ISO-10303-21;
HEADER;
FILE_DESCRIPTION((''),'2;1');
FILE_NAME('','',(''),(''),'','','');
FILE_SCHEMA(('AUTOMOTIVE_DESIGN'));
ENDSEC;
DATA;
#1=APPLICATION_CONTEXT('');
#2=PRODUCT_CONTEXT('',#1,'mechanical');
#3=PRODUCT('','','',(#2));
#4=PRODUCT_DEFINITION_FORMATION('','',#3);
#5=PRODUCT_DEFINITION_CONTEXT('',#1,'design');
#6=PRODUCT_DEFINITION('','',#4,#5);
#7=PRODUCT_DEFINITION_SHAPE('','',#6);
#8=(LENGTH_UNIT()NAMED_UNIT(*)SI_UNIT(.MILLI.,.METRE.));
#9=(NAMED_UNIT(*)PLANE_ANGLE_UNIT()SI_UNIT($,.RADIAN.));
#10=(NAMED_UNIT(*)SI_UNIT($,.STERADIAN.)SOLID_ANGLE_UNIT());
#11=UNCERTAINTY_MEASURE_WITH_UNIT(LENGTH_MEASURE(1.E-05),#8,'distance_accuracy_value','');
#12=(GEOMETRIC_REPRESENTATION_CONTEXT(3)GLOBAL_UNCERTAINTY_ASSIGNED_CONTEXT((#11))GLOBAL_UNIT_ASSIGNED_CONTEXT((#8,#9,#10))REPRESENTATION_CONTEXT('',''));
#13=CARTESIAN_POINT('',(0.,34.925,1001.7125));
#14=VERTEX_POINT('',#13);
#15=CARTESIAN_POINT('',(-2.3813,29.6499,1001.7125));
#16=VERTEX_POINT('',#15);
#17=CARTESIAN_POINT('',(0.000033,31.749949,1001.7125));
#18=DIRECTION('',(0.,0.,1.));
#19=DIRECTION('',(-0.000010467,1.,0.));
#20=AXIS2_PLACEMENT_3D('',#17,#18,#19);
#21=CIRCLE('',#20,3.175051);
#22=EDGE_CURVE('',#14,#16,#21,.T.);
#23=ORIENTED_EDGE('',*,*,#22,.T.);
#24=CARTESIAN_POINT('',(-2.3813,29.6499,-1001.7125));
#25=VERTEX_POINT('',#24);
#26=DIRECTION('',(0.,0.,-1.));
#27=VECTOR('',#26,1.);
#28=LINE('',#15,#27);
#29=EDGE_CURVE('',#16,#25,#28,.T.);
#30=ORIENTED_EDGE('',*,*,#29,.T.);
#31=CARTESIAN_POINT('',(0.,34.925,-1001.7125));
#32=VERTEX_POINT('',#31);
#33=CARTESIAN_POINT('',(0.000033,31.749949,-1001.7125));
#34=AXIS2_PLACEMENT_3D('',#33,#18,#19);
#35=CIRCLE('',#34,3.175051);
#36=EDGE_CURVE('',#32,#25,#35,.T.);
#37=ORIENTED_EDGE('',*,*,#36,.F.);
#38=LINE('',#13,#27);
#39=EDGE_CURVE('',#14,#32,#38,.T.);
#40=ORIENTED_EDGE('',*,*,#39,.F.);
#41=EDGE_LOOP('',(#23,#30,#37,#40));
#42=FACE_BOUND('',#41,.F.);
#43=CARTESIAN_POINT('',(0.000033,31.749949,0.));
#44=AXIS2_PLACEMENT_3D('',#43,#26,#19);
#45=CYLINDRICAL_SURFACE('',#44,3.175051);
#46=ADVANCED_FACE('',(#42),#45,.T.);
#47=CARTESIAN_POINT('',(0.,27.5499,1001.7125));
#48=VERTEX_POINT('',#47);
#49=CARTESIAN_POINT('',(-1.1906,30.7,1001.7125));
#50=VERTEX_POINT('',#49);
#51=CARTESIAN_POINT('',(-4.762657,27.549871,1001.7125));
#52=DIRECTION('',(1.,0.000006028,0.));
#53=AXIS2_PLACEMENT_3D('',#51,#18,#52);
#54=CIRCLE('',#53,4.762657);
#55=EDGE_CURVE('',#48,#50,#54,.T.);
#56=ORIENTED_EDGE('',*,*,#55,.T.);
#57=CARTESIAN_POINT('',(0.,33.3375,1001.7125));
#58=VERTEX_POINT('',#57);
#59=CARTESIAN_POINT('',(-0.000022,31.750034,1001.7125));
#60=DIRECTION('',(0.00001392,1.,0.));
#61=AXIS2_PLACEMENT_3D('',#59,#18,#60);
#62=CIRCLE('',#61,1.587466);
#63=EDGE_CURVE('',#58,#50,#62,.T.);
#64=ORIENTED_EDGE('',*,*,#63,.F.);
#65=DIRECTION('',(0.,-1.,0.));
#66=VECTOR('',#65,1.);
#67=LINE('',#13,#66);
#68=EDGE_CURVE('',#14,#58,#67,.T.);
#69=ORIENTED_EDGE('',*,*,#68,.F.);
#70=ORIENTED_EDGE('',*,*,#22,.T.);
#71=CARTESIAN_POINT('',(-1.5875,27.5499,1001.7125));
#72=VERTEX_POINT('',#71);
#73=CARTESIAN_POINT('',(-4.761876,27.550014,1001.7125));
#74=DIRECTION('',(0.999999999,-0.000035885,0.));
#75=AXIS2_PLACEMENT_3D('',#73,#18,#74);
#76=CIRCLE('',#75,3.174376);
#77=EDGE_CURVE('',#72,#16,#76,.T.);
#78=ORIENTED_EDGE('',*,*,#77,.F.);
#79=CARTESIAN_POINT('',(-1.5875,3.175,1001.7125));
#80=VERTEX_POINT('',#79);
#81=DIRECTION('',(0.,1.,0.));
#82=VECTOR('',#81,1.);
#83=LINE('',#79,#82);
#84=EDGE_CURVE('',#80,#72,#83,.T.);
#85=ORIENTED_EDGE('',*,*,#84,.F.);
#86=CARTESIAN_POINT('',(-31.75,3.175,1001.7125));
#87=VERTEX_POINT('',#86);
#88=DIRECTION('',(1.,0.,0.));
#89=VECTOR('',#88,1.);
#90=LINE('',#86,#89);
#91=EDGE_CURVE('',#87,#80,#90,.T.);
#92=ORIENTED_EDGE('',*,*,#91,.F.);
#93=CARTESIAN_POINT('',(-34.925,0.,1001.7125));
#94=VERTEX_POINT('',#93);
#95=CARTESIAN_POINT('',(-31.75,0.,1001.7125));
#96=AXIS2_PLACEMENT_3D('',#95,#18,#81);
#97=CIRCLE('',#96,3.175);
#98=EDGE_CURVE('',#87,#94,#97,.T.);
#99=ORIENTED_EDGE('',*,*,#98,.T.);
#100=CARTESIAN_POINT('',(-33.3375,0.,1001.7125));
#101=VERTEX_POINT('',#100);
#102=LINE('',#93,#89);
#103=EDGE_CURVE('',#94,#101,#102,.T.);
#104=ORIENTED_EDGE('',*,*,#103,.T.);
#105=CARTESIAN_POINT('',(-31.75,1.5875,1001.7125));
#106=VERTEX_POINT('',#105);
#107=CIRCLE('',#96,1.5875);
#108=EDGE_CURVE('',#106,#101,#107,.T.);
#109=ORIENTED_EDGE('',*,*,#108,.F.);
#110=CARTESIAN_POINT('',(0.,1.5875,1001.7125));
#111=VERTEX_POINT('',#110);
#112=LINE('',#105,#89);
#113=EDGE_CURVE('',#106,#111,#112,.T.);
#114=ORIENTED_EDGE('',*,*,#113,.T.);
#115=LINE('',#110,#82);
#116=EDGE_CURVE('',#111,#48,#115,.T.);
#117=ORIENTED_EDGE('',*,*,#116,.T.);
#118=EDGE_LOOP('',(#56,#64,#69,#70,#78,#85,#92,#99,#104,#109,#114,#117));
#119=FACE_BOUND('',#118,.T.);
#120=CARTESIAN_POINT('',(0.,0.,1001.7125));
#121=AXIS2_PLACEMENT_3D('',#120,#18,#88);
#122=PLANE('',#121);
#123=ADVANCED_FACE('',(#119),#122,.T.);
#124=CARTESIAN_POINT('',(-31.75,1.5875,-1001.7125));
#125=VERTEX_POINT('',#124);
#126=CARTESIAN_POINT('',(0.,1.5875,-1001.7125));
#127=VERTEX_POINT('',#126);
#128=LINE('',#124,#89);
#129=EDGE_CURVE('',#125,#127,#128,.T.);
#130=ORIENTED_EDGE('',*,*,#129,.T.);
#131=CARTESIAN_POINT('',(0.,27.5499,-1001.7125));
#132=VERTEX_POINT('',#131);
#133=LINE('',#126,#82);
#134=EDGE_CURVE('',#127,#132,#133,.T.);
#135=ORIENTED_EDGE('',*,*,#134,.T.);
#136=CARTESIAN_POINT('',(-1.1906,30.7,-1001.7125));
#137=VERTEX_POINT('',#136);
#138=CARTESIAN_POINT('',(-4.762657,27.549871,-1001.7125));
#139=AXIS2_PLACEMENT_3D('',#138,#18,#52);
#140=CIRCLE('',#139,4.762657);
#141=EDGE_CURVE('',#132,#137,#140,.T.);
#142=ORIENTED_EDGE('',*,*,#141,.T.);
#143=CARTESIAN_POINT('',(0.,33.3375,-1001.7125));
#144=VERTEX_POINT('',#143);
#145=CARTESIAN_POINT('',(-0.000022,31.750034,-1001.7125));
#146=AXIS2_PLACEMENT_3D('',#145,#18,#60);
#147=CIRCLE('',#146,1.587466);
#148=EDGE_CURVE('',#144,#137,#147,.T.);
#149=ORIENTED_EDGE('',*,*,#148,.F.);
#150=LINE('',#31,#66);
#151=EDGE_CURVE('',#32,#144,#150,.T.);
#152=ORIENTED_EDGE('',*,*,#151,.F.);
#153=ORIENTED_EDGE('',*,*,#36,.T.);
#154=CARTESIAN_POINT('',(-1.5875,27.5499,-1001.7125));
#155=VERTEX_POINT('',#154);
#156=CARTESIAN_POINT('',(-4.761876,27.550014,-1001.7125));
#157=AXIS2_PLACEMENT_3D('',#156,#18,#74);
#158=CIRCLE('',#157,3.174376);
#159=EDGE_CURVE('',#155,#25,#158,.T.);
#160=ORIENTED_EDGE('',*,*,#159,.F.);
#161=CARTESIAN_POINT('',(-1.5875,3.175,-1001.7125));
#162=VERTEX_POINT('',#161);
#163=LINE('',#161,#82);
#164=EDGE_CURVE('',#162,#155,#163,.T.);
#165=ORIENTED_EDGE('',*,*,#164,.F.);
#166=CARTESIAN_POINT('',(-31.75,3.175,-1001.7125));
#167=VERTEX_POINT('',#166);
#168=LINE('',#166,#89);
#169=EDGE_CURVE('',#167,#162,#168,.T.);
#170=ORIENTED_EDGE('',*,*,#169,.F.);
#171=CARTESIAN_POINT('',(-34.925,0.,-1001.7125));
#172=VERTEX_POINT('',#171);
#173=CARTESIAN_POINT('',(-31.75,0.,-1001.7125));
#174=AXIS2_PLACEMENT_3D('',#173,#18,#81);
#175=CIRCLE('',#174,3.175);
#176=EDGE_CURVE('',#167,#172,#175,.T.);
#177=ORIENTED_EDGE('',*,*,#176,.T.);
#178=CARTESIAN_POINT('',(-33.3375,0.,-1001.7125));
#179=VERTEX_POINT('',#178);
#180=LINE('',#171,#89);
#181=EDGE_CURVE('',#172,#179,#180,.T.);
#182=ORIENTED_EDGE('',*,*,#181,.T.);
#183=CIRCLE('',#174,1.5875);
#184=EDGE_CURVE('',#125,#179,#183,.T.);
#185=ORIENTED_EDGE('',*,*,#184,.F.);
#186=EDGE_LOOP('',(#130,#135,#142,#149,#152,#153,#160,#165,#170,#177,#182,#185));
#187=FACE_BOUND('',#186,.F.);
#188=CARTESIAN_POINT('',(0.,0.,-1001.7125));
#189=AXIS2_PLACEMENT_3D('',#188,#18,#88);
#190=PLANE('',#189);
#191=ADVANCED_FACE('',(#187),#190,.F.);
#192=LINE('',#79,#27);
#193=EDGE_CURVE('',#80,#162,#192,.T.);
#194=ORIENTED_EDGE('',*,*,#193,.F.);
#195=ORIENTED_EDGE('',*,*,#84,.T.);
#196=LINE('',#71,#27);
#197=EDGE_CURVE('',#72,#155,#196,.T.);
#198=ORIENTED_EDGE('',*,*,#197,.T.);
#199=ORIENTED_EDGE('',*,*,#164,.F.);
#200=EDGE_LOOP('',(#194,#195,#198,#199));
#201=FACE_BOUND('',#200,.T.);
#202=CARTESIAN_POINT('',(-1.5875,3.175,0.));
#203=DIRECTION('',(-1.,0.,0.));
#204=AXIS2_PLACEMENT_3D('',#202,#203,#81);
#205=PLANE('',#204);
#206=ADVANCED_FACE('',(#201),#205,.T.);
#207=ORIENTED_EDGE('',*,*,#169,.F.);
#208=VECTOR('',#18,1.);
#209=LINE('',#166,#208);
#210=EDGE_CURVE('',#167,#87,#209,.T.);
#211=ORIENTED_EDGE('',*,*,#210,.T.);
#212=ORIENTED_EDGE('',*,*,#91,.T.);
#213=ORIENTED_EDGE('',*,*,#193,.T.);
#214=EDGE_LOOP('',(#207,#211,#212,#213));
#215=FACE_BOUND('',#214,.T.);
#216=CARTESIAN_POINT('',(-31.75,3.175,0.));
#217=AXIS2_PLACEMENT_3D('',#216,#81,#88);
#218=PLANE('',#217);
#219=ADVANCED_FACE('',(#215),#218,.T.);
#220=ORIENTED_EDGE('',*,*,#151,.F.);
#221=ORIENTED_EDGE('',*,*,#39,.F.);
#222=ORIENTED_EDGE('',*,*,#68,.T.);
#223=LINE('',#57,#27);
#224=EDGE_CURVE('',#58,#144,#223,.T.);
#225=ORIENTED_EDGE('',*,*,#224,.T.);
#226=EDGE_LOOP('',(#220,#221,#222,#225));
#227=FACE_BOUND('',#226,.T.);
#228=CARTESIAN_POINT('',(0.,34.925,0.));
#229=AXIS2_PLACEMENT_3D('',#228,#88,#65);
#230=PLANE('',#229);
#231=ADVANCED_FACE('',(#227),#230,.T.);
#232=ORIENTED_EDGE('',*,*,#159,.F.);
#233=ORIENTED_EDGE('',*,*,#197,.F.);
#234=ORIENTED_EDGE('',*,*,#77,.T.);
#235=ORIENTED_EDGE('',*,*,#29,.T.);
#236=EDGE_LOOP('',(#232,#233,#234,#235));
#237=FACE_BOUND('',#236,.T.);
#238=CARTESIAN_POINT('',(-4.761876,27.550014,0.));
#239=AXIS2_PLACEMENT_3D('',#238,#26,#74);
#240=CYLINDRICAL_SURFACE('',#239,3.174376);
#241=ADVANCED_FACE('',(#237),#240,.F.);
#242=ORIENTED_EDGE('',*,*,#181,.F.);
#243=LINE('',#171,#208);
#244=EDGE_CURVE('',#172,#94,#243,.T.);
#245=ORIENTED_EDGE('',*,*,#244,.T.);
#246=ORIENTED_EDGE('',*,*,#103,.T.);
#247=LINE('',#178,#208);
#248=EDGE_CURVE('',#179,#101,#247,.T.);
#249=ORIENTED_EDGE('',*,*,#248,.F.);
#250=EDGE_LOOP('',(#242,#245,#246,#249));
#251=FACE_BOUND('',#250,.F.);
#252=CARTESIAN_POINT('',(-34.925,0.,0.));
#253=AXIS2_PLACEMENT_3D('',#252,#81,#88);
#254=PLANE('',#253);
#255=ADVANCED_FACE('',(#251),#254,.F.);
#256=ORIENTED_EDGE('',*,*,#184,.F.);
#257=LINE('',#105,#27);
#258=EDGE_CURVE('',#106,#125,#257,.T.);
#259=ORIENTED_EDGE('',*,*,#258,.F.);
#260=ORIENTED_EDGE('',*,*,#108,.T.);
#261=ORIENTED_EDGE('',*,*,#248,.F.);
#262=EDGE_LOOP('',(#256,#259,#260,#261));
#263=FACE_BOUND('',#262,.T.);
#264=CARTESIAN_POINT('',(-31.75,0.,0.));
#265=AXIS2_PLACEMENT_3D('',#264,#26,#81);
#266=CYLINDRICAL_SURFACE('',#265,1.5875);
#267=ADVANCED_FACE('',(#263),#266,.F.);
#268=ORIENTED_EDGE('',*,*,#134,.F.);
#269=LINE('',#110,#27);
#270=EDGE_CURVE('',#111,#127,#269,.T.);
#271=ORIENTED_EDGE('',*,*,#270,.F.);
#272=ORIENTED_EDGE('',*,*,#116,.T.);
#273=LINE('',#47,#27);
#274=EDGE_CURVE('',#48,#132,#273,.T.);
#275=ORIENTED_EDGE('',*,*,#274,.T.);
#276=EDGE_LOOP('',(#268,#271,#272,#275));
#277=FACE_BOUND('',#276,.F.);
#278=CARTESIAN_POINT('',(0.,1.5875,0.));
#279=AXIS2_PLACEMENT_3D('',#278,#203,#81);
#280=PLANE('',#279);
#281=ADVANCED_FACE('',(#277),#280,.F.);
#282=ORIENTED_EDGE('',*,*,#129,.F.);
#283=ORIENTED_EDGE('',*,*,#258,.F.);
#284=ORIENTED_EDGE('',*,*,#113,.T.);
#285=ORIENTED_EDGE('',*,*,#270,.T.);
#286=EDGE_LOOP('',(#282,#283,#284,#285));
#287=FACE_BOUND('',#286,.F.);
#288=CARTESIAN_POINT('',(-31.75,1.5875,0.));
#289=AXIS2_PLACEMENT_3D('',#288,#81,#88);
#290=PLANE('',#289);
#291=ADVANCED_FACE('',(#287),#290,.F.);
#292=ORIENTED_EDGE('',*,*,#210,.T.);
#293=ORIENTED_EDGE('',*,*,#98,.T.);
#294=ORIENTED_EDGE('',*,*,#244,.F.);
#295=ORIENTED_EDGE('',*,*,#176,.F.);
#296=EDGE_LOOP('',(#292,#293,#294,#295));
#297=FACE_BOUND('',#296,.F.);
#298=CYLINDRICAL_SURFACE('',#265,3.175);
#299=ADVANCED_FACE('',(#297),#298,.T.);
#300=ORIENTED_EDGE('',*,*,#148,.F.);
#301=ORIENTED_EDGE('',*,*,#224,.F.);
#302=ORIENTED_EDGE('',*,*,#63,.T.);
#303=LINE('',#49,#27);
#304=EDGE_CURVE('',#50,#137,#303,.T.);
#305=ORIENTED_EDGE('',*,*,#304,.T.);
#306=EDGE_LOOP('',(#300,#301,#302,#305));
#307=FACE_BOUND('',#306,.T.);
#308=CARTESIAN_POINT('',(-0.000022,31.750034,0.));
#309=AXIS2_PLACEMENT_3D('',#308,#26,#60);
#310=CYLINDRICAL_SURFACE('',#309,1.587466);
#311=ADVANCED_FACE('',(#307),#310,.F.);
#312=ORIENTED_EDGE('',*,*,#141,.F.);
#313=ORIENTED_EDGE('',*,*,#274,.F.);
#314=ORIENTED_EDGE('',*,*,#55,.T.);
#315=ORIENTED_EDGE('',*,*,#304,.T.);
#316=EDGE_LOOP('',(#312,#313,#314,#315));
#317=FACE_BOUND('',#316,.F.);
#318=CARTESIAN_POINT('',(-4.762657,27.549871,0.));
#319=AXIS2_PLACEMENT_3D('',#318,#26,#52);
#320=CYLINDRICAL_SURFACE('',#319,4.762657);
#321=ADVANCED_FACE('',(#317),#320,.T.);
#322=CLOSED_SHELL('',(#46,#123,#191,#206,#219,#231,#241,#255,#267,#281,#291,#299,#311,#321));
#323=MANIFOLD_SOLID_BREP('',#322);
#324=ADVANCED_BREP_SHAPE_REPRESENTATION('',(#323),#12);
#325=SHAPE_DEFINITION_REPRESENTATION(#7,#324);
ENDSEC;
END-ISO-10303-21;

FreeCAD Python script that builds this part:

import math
import FreeCAD as App
import Part
import Sketcher
Q = App.Units.Quantity

doc = App.newDocument("Part")
params = doc.addObject("Spreadsheet::Sheet", "Params")
for row, (alias, value) in enumerate([
    ("sketch1_radius", "0.125 in"),
    ("sketch1_radius2", "0.0625 in"),
    ("pad1_length", "78.875 in"),
], start=1):
    params.set(f"A{row}", alias)
    params.set(f"B{row}", "=" + value)
    params.setAlias(f"B{row}", alias)

body = doc.addObject("PartDesign::Body", "Body")

sketch1 = body.newObject("Sketcher::SketchObject", "Sketch")
sketch1.AttachmentSupport = (doc.getObject("XY_Plane"), [""])
sketch1.MapMode = "FlatFace"
sketch1.addGeometry([
    Part.LineSegment(App.Vector(-1.5875, 3.175, 0), App.Vector(-31.75, 3.175, 0)),
    Part.ArcOfCircle(Part.Circle(App.Vector(-31.75, 0, 0), App.Vector(0, 0, 1), 3.175), math.radians(90), math.radians(180)),
    Part.LineSegment(App.Vector(-34.925, 0, 0), App.Vector(-33.3375, 0, 0)),
    Part.ArcOfCircle(Part.Circle(App.Vector(-31.75, 0, 0), App.Vector(0, 0, 1), 1.5875), math.radians(90), math.radians(180)),
    Part.LineSegment(App.Vector(-31.75, 1.5875, 0), App.Vector(0, 1.5875, 0)),
    Part.LineSegment(App.Vector(0, 1.5875, 0), App.Vector(0, 27.5499, 0)),
    Part.ArcOfCircle(Part.Circle(App.Vector(-4.7625, 27.5499, 0), App.Vector(0, 0, 1), 4.7625), math.radians(0), math.radians(41.409444)),
    Part.ArcOfCircle(Part.Circle(App.Vector(0, 31.75, 0), App.Vector(0, 0, 1), 1.5875), math.radians(90), math.radians(221.409338)),
    Part.LineSegment(App.Vector(0, 33.3375, 0), App.Vector(0, 34.925, 0)),
    Part.ArcOfCircle(Part.Circle(App.Vector(0, 31.75, 0), App.Vector(0, 0, 1), 3.175), math.radians(90), math.radians(221.409498)),
    Part.ArcOfCircle(Part.Circle(App.Vector(-4.7625, 27.5499, 0), App.Vector(0, 0, 1), 3.175), math.radians(0), math.radians(41.409338)),
    Part.LineSegment(App.Vector(-1.5875, 27.5499, 0), App.Vector(-1.5875, 3.175, 0)),
], False)
sketch1.addConstraint([
    Sketcher.Constraint("Tangent", 0, 2, 1, 1),
    Sketcher.Constraint("Coincident", 1, 2, 2, 1),
    Sketcher.Constraint("Coincident", 2, 2, 3, 2),
    Sketcher.Constraint("Tangent", 3, 1, 4, 1),
    Sketcher.Constraint("Coincident", 4, 2, 5, 1),
    Sketcher.Constraint("Tangent", 5, 2, 6, 1),
    Sketcher.Constraint("Tangent", 6, 2, 7, 2),
    Sketcher.Constraint("Coincident", 7, 1, 8, 1),
    Sketcher.Constraint("Coincident", 8, 2, 9, 1),
    Sketcher.Constraint("Tangent", 9, 2, 10, 2),
    Sketcher.Constraint("Tangent", 10, 1, 11, 1),
    Sketcher.Constraint("Coincident", 11, 2, 0, 1),
    Sketcher.Constraint("Horizontal", 0),
    Sketcher.Constraint("Horizontal", 2),
    Sketcher.Constraint("Horizontal", 4),
    Sketcher.Constraint("Vertical", 5),
    Sketcher.Constraint("Vertical", 8),
    Sketcher.Constraint("Vertical", 11),
    Sketcher.Constraint("Coincident", 3, 3, 1, 3),
    Sketcher.Constraint("Coincident", 9, 3, 7, 3),
    Sketcher.Constraint("Coincident", 10, 3, 6, 3),
    Sketcher.Constraint("Equal", 3, 7),
    Sketcher.Constraint("Equal", 1, 9),
    Sketcher.Constraint("Equal", 9, 10),
    Sketcher.Constraint("PointOnObject", 1, 3, -1),
    Sketcher.Constraint("PointOnObject", 7, 3, -2),
    Sketcher.Constraint("PointOnObject", 1, 2, -1),
    Sketcher.Constraint("PointOnObject", 4, 2, -2),
    Sketcher.Constraint("PointOnObject", 7, 1, -2),
    Sketcher.Constraint("Radius", 1, Q("0.125 in")),
    Sketcher.Constraint("Radius", 3, Q("0.0625 in")),
    Sketcher.Constraint("DistanceX", 1, 2, -1, 1, Q("1.375 in")),
    Sketcher.Constraint("DistanceY", -1, 1, 8, 2, Q("1.375 in")),
])
sketch1.setExpression("Constraints[29]", "Params.sketch1_radius")
sketch1.setExpression("Constraints[30]", "Params.sketch1_radius2")
pad1 = body.newObject("PartDesign::Pad", "Pad")
pad1.Profile = sketch1
pad1.setExpression("Length", "Params.pad1_length")
pad1.Midplane = True

doc.recompute()
